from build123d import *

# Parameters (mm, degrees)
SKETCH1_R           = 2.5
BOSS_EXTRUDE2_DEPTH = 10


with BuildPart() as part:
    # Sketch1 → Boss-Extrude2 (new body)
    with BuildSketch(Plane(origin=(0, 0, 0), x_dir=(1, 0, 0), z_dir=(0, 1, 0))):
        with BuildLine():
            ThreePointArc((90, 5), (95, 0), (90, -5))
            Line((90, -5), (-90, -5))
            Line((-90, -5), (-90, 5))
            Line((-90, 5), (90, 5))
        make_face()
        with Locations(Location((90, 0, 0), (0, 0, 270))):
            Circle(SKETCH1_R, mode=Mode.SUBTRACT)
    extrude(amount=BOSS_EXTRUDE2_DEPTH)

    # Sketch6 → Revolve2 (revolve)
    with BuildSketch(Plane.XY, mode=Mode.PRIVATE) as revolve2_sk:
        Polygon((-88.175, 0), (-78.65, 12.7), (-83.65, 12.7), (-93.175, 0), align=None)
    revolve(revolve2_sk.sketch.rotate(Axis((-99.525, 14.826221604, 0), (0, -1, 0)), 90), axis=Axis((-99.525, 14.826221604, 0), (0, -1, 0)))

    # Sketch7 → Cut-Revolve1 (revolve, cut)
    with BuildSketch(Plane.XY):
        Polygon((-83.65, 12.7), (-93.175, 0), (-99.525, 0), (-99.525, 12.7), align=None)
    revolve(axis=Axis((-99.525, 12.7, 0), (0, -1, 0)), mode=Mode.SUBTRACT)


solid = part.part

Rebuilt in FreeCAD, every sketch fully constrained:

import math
import FreeCAD as App
import Part
import Sketcher

V = App.Vector


def add_polygon(sketch, points):
    """Adds a closed chain of lines whose ends are joined by coincident constraints."""
    first, n = sketch.GeometryCount, len(points)
    for a, b in zip(points, points[1:] + points[:1]):
        sketch.addGeometry(Part.LineSegment(App.Vector(*a, 0), App.Vector(*b, 0)), False)
    for i in range(n):
        sketch.addConstraint(Sketcher.Constraint("Coincident", first + i, 2, first + (i + 1) % n, 1))

doc = App.newDocument("Part")
body = doc.addObject("PartDesign::Body", "Body")

# Sketch on XZ plane
sketch1 = body.newObject("Sketcher::SketchObject", "Sketch")
sketch1.AttachmentSupport = (doc.getObject("XZ_Plane"), [""])
sketch1.MapMode = "FlatFace"
sketch1.addGeometry([
    Part.ArcOfCircle(Part.Circle(V(90, 0, 0), V(0, 0, 1), 5), math.radians(-90), math.radians(90)),  # 0
    Part.LineSegment(V(90, -5, 0), V(-90, -5, 0)),  # 1
    Part.LineSegment(V(-90, -5, 0), V(-90, 5, 0)),  # 2
    Part.LineSegment(V(-90, 5, 0), V(90, 5, 0)),  # 3
    Part.Circle(V(90, 0, 0), V(0, 0, 1), 2.5),  # 4
], False)
sketch1.addConstraint([
    Sketcher.Constraint("Tangent", 0, 1, 1, 1),
    Sketcher.Constraint("Coincident", 1, 2, 2, 1),
    Sketcher.Constraint("Coincident", 2, 2, 3, 1),
    Sketcher.Constraint("Tangent", 3, 2, 0, 2),
    Sketcher.Constraint("Horizontal", 1),
    Sketcher.Constraint("Vertical", 2),
    Sketcher.Constraint("Horizontal", 3),
    Sketcher.Constraint("Coincident", 4, 3, 0, 3),
    Sketcher.Constraint("Symmetric", 0, 1, 2, 2, -1, 1),
    Sketcher.Constraint("Diameter", 4, 5.0),
    Sketcher.Constraint("Radius", 0, 5.0),
    Sketcher.Constraint("DistanceX", 1, 2, 1, 1, 180.0),
])
pad1 = body.newObject("PartDesign::Pad", "Pad")
pad1.Profile = sketch1
pad1.Length = 10
pad1.Reversed = True

# Sketch on XY plane
sketch2 = body.newObject("Sketcher::SketchObject", "Sketch001")
sketch2.AttachmentSupport = (doc.getObject("XY_Plane"), [""])
sketch2.MapMode = "FlatFace"
add_polygon(sketch2, [(-88, 0), (-79, 13), (-84, 13), (-93, 0)])  # lines 0-3
sketch2.addGeometry(Part.LineSegment(V(-100, 13, 0), V(-100, 0, 0)), True)  # axis
sketch2.addConstraint([
    Sketcher.Constraint("Horizontal", 1),
    Sketcher.Constraint("Horizontal", 3),
    Sketcher.Constraint("Vertical", 4),
    Sketcher.Constraint("PointOnObject", 2, 2, -1),
    Sketcher.Constraint("PointOnObject", 4, 2, -1),
    Sketcher.Constraint("Parallel", 0, 2),
    Sketcher.Constraint("Horizontal", 1, 2, 4, 1),
    Sketcher.Constraint("DistanceX", 1, 2, 1, 1, 5.0),
    Sketcher.Constraint("DistanceY", 4, 2, 4, 1, 12.7),
    Sketcher.Constraint("DistanceX", 0, 2, -1, 1, 78.65),
    Sketcher.Constraint("DistanceX", 4, 1, 2, 2, 6.35),
    Sketcher.Constraint("Distance", 0, 15.875),
])
revolution = body.newObject("PartDesign::Revolution", "Revolution")
revolution.Profile = sketch2
revolution.ReferenceAxis = (sketch2, ["Axis0"])
revolution.Angle = 360

# Sketch on XY plane
sketch3 = body.newObject("Sketcher::SketchObject", "Sketch002")
sketch3.AttachmentSupport = (doc.getObject("XY_Plane"), [""])
sketch3.MapMode = "FlatFace"
add_polygon(sketch3, [(-93, 0), (-84, 13), (-100, 13), (-100, 0)])  # lines 0-3
sketch3.addGeometry(Part.LineSegment(V(-100, 13, 0), V(-100, 0, 0)), True)  # axis
sketch3.addConstraint([
    Sketcher.Constraint("Horizontal", 1),
    Sketcher.Constraint("Vertical", 2),
    Sketcher.Constraint("Horizontal", 3),
    Sketcher.Constraint("Vertical", 4),
    Sketcher.Constraint("Coincident", 4, 1, 1, 2),
    Sketcher.Constraint("PointOnObject", 2, 2, -1),
    Sketcher.Constraint("PointOnObject", 4, 2, -1),
    Sketcher.Constraint("DistanceY", 2, 2, 2, 1, 12.7),
    Sketcher.Constraint("DistanceX", 3, 1, 3, 2, 6.35),
    Sketcher.Constraint("DistanceX", 1, 2, 1, 1, 15.875),
    Sketcher.Constraint("DistanceX", 0, 2, -1, 1, 83.65),
])
groove = body.newObject("PartDesign::Groove", "Groove")
groove.Profile = sketch3
groove.ReferenceAxis = (sketch3, ["Axis0"])
groove.Angle = 360

doc.recompute()
